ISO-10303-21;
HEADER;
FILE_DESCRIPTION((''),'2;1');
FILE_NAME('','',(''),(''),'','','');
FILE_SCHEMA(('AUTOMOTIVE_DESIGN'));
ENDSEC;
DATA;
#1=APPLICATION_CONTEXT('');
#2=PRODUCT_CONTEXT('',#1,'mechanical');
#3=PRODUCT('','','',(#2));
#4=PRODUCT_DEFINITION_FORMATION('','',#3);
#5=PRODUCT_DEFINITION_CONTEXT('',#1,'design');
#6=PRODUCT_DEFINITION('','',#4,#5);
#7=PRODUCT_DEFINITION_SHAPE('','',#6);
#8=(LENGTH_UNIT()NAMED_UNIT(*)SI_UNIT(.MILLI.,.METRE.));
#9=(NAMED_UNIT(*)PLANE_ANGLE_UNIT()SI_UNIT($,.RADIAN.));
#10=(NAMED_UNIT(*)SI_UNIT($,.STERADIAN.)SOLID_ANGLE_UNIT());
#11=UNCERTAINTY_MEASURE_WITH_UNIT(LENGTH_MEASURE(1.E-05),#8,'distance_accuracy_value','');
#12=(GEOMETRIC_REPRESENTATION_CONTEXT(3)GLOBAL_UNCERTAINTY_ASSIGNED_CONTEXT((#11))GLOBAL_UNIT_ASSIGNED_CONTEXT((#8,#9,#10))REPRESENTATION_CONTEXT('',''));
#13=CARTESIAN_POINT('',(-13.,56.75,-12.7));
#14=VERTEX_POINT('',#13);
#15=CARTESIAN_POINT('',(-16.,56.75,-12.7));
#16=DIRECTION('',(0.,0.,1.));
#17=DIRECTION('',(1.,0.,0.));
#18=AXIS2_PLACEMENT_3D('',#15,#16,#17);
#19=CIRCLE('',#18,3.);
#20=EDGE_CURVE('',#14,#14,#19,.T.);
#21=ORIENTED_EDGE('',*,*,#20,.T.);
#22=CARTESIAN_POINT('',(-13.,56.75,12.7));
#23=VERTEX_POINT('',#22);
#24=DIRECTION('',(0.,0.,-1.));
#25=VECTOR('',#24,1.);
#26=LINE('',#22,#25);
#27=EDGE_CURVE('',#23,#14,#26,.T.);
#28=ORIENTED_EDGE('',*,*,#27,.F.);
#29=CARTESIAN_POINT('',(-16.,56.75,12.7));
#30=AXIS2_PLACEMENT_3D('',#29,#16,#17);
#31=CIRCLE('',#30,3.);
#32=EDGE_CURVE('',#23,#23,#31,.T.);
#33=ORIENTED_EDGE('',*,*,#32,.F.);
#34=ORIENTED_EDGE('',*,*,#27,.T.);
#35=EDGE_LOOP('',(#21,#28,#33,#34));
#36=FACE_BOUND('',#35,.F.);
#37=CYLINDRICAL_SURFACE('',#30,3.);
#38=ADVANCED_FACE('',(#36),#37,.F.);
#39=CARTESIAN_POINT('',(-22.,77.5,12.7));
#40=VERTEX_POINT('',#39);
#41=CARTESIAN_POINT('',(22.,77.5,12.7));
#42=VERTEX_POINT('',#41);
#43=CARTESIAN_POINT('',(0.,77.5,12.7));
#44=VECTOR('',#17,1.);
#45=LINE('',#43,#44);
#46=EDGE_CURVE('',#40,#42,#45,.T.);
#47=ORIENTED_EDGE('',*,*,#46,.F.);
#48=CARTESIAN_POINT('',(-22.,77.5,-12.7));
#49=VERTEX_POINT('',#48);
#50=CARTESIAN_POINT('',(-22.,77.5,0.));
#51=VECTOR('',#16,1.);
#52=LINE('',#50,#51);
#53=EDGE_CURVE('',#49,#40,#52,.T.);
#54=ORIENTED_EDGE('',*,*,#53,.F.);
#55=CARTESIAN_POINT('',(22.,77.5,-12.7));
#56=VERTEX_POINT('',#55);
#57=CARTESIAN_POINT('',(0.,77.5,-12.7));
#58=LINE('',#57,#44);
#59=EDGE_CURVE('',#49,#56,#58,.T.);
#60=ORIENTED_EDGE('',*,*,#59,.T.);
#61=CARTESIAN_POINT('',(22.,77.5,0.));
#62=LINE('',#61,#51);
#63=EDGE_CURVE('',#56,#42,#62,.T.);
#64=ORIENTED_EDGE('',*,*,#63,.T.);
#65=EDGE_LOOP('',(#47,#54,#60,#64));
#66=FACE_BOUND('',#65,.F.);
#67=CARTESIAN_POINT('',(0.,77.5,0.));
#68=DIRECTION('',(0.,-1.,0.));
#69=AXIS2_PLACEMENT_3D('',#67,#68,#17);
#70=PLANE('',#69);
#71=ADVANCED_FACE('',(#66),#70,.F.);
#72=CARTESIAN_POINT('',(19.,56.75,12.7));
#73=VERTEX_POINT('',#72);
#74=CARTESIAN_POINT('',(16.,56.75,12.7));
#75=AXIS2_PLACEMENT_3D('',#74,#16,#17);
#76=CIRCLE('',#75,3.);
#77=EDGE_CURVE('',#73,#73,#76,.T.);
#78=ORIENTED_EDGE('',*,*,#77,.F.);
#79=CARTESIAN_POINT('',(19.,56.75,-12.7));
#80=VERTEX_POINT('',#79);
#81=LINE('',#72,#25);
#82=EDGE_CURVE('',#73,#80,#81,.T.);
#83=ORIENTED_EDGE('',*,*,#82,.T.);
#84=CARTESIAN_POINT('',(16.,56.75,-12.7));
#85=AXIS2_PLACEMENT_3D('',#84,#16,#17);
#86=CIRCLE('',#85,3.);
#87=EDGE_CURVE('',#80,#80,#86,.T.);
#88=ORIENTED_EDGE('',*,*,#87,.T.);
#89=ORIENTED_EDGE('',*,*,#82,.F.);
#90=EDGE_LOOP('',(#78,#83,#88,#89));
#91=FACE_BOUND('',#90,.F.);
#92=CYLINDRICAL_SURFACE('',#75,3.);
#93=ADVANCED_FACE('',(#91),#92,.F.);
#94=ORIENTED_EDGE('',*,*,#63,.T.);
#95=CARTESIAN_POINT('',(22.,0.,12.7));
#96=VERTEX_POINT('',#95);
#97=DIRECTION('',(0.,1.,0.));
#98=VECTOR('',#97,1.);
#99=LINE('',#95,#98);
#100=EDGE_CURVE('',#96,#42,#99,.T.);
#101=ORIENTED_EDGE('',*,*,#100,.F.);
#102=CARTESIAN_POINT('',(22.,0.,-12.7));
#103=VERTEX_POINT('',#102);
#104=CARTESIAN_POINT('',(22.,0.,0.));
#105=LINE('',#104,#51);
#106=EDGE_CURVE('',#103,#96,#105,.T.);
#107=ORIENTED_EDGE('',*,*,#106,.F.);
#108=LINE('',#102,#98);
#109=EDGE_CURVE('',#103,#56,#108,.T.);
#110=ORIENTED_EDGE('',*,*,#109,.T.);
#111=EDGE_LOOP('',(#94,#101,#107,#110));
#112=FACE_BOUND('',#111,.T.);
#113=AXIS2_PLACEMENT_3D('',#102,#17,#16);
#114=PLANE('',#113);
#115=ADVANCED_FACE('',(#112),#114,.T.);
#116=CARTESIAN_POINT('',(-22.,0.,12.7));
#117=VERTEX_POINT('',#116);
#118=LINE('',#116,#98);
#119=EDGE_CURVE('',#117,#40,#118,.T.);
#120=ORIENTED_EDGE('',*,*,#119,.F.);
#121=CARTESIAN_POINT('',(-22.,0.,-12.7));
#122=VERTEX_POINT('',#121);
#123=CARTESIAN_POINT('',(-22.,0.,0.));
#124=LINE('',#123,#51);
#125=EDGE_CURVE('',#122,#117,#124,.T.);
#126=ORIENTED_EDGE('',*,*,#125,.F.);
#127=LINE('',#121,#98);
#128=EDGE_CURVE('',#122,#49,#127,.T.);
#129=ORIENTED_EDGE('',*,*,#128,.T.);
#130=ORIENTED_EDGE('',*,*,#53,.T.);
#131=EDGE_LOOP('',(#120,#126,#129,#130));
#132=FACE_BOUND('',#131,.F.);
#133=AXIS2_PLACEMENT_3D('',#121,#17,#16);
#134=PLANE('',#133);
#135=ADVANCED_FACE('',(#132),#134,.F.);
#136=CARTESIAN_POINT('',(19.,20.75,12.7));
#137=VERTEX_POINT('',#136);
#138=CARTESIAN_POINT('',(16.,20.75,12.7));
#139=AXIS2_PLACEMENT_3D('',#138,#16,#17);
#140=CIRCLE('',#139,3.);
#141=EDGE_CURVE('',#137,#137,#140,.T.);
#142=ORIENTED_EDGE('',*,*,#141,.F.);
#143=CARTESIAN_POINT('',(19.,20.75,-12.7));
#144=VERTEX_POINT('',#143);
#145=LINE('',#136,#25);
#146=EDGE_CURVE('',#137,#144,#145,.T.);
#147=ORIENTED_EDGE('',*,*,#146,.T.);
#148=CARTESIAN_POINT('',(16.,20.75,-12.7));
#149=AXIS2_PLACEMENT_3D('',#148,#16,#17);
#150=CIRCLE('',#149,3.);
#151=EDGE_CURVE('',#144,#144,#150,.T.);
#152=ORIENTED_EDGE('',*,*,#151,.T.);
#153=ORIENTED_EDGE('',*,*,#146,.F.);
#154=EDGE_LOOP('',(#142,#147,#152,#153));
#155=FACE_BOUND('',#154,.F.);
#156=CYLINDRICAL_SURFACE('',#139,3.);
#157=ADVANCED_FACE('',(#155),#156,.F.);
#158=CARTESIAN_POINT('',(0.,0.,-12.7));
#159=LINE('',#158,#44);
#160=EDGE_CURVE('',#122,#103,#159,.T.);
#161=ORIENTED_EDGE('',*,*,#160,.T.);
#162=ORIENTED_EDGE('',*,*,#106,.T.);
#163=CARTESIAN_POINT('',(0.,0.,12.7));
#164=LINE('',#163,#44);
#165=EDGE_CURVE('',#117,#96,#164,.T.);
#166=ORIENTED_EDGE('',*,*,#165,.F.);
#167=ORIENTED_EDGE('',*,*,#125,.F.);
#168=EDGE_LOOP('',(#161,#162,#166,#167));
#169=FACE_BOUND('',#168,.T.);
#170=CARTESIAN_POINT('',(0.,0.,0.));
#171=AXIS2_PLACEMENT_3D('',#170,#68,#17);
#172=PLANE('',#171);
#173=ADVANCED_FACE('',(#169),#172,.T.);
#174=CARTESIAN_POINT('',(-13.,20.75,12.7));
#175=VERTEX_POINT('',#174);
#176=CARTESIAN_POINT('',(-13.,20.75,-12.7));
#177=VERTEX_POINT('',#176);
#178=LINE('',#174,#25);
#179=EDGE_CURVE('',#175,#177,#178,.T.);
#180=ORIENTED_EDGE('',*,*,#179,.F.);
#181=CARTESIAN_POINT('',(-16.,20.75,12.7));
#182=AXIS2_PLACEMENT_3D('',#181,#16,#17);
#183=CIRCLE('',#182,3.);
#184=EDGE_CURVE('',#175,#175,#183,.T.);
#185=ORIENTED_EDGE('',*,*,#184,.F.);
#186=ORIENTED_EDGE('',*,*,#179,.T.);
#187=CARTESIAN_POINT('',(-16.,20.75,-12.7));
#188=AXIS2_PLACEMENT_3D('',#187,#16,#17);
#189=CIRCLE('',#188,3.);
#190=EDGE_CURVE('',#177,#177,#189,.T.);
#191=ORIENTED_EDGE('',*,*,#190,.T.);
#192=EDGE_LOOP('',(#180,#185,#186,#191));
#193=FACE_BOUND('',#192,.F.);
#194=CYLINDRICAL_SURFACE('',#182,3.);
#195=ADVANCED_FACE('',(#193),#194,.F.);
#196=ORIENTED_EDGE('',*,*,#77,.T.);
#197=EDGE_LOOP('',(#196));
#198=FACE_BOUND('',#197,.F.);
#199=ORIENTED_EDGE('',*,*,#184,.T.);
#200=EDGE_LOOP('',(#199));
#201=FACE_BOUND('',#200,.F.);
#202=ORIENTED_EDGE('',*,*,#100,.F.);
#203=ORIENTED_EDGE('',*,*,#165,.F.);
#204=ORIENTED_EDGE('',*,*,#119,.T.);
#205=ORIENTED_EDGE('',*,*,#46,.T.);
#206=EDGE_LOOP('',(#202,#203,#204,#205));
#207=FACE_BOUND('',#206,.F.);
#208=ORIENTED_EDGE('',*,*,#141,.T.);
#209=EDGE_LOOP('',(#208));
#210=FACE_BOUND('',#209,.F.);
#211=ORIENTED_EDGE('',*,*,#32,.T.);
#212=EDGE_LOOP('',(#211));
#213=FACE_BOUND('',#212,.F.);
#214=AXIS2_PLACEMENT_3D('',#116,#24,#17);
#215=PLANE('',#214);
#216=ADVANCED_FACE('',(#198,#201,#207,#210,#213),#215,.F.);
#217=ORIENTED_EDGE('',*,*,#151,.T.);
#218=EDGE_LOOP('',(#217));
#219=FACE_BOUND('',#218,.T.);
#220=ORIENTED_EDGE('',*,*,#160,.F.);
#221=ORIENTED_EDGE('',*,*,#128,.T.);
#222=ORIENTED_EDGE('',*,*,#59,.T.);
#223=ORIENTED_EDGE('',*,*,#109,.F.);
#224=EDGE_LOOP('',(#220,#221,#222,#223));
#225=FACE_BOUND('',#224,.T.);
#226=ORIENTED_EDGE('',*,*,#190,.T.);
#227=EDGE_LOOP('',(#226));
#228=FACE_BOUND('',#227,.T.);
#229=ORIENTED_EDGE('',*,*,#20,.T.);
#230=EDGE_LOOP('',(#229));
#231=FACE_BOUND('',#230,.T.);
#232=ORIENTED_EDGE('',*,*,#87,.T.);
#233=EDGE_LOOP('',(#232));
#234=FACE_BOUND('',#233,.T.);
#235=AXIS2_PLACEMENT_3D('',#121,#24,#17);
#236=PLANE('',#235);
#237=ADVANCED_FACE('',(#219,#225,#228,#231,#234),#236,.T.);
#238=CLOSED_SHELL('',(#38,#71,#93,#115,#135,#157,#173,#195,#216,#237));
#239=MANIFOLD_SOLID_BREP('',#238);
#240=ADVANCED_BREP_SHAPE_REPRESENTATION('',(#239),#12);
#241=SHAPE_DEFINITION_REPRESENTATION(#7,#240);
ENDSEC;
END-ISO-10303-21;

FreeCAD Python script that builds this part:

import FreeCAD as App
import Part
import Sketcher


def add_polygon(sketch, points):
    """Adds a closed chain of lines whose ends are joined by coincident constraints."""
    first, n = sketch.GeometryCount, len(points)
    for a, b in zip(points, points[1:] + points[:1]):
        sketch.addGeometry(Part.LineSegment(App.Vector(*a, 0), App.Vector(*b, 0)), False)
    for i in range(n):
        sketch.addConstraint(Sketcher.Constraint("Coincident", first + i, 2, first + (i + 1) % n, 1))

doc = App.newDocument("Part")
params = doc.addObject("Spreadsheet::Sheet", "Params")
for row, (alias, value) in enumerate([
    ("sketch1_width", "44 mm"),
    ("sketch1_height", "25.4 mm"),
    ("pad1_length", "77.5 mm"),
    ("sketch2_diameter", "6 mm"),
], start=1):
    params.set(f"A{row}", alias)
    params.set(f"B{row}", "=" + value)
    params.setAlias(f"B{row}", alias)

body = doc.addObject("PartDesign::Body", "Body")

sketch1 = body.newObject("Sketcher::SketchObject", "Sketch")
sketch1.AttachmentSupport = (doc.getObject("XZ_Plane"), [""])
sketch1.MapMode = "FlatFace"
add_polygon(sketch1, [(-22, 13), (-22, -13), (22, -13), (22, 13)])
sketch1.addConstraint([
    Sketcher.Constraint("Vertical", 0),
    Sketcher.Constraint("Horizontal", 1),
    Sketcher.Constraint("Vertical", 2),
    Sketcher.Constraint("Horizontal", 3),
    Sketcher.Constraint("Symmetric", 0, 2, 2, 2, -1, 1),
    Sketcher.Constraint("DistanceX", 1, 1, 1, 2, 44.0),
    Sketcher.Constraint("DistanceY", 0, 2, 0, 1, 25.4),
])
sketch1.setExpression("Constraints[9]", "Params.sketch1_width")
sketch1.setExpression("Constraints[10]", "Params.sketch1_height")
pad1 = body.newObject("PartDesign::Pad", "Pad")
pad1.Profile = sketch1
pad1.setExpression("Length", "Params.pad1_length")
pad1.Reversed = True

sketch2 = body.newObject("Sketcher::SketchObject", "Sketch001")
sketch2.AttachmentSupport = (doc.getObject("XY_Plane"), [""])
sketch2.MapMode = "FlatFace"
sketch2.AttachmentOffset = App.Placement(App.Vector(0, 0, 12.7), App.Rotation())
sketch2.addGeometry([
    Part.Circle(App.Vector(-16, 56.8, 0), App.Vector(0, 0, 1), 3),
    Part.Circle(App.Vector(-16, 20.8, 0), App.Vector(0, 0, 1), 3),
    Part.Circle(App.Vector(16, 20.8, 0), App.Vector(0, 0, 1), 3),
    Part.Circle(App.Vector(16, 56.8, 0), App.Vector(0, 0, 1), 3),
], False)
sketch2.addConstraint([
    Sketcher.Constraint("Equal", 0, 1),
    Sketcher.Constraint("Equal", 1, 2),
    Sketcher.Constraint("Equal", 2, 3),
    Sketcher.Constraint("Symmetric", 1, 3, 2, 3, -2),
    Sketcher.Constraint("Symmetric", 0, 3, 3, 3, -2),
    Sketcher.Constraint("Vertical", 0, 3, 1, 3),
    Sketcher.Constraint("Diameter", 0, 6.0),
    Sketcher.Constraint("DistanceX", 0, 3, -1, 1, 16.0),
    Sketcher.Constraint("DistanceY", 1, 3, 0, 3, 36.0),
    Sketcher.Constraint("DistanceY", -1, 1, 0, 3, 56.75),
])
sketch2.setExpression("Constraints[6]", "Params.sketch2_diameter")
pocket1 = body.newObject("PartDesign::Pocket", "Pocket")
pocket1.Profile = sketch2
pocket1.Type = "ThroughAll"

doc.recompute()
